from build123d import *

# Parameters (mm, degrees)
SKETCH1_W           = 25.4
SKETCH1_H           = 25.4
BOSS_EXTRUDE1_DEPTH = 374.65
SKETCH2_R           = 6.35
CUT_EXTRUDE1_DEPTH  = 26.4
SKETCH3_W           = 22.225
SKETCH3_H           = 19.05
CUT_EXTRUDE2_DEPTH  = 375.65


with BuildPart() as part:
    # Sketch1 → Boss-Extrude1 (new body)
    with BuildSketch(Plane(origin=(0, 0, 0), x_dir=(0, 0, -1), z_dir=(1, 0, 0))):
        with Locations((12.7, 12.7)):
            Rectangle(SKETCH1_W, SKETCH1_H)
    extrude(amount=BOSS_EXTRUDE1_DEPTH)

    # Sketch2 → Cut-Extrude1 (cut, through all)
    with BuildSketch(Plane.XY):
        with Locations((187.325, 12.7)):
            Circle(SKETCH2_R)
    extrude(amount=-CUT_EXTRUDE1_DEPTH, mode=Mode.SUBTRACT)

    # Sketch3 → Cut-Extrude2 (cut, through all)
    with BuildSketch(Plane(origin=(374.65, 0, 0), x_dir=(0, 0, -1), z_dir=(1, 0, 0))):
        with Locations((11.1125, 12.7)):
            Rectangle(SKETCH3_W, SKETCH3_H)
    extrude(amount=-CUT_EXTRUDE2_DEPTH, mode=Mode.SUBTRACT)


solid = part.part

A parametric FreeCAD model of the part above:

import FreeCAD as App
import Part
import Sketcher
from FreeCAD import Vector
Q = App.Units.Quantity

doc = App.newDocument("Part")
params = doc.addObject("Spreadsheet::Sheet", "Params")
for row, (alias, value) in enumerate([
    ("sketch1_width", "1 in"),
    ("pad1_length", "14.75 in"),
    ("sketch2_diameter", "0.5 in"),
    ("sketch3_width", "0.75 in"),
    ("sketch3_height", "0.875 in"),
], start=1):
    params.set(f"A{row}", alias)
    params.set(f"B{row}", "=" + value)
    params.setAlias(f"B{row}", alias)

body = doc.addObject("PartDesign::Body", "Body")

# Sketch on YZ plane
sketch1 = body.newObject("Sketcher::SketchObject", "Sketch")
sketch1.AttachmentSupport = (doc.getObject("YZ_Plane"), [""])
sketch1.MapMode = "FlatFace"
sketch1.addGeometry([
    Part.LineSegment(Vector(25, 0, 0), Vector(0, 0, 0)),
    Part.LineSegment(Vector(0, 0, 0), Vector(0, -25, 0)),
    Part.LineSegment(Vector(0, -25, 0), Vector(25, -25, 0)),
    Part.LineSegment(Vector(25, -25, 0), Vector(25, 0, 0)),
], False)
sketch1.addConstraint([
    Sketcher.Constraint("Coincident", 0, 2, 1, 1),
    Sketcher.Constraint("Coincident", 1, 2, 2, 1),
    Sketcher.Constraint("Coincident", 2, 2, 3, 1),
    Sketcher.Constraint("Coincident", 3, 2, 0, 1),
    Sketcher.Constraint("Horizontal", 0),
    Sketcher.Constraint("Vertical", 1),
    Sketcher.Constraint("Horizontal", 2),
    Sketcher.Constraint("Vertical", 3),
    Sketcher.Constraint("Coincident", 0, 2, -1, 1),
    Sketcher.Constraint("Equal", 2, 1),
    Sketcher.Constraint("DistanceX", 0, 2, 0, 1, Q("1 in")),
])
sketch1.setExpression("Constraints[10]", "Params.sketch1_width")
pad1 = body.newObject("PartDesign::Pad", "Pad")
pad1.Profile = sketch1
pad1.setExpression("Length", "Params.pad1_length")

# Sketch on XY plane
sketch2 = body.newObject("Sketcher::SketchObject", "Sketch001")
sketch2.AttachmentSupport = (doc.getObject("XY_Plane"), [""])
sketch2.MapMode = "FlatFace"
sketch2.addGeometry(Part.Circle(Vector(187, 13, 0), Vector(0, 0, 1), 6), False)
sketch2.addConstraint([
    Sketcher.Constraint("Diameter", 0, Q("0.5 in")),
    Sketcher.Constraint("DistanceY", -1, 1, 0, 3, Q("0.5 in")),
    Sketcher.Constraint("DistanceX", -1, 1, 0, 3, Q("7.375 in")),
])
sketch2.setExpression("Constraints[0]", "Params.sketch2_diameter")
pocket1 = body.newObject("PartDesign::Pocket", "Pocket")
pocket1.Profile = sketch2
pocket1.Type = "ThroughAll"

# Sketch on YZ plane
sketch3 = body.newObject("Sketcher::SketchObject", "Sketch002")
sketch3.AttachmentSupport = (doc.getObject("YZ_Plane"), [""])
sketch3.MapMode = "FlatFace"
sketch3.AttachmentOffset = App.Placement(Vector(0, 0, 14.75 * 25.4), App.Rotation())
sketch3.addGeometry([
    Part.LineSegment(Vector(22, 0, 0), Vector(3, 0, 0)),
    Part.LineSegment(Vector(3, 0, 0), Vector(3, -22, 0)),
    Part.LineSegment(Vector(3, -22, 0), Vector(22, -22, 0)),
    Part.LineSegment(Vector(22, -22, 0), Vector(22, 0, 0)),
], False)
sketch3.addConstraint([
    Sketcher.Constraint("Coincident", 0, 2, 1, 1),
    Sketcher.Constraint("Coincident", 1, 2, 2, 1),
    Sketcher.Constraint("Coincident", 2, 2, 3, 1),
    Sketcher.Constraint("Coincident", 3, 2, 0, 1),
    Sketcher.Constraint("Horizontal", 0),
    Sketcher.Constraint("Vertical", 1),
    Sketcher.Constraint("Horizontal", 2),
    Sketcher.Constraint("Vertical", 3),
    Sketcher.Constraint("PointOnObject", 0, 2, -1),
    Sketcher.Constraint("DistanceX", 0, 2, 0, 1, Q("0.75 in")),
    Sketcher.Constraint("DistanceY", 1, 2, 1, 1, Q("0.875 in")),
    Sketcher.Constraint("DistanceX", -1, 1, 0, 2, Q("0.125 in")),
])
sketch3.setExpression("Constraints[9]", "Params.sketch3_width")
sketch3.setExpression("Constraints[10]", "Params.sketch3_height")
pocket2 = body.newObject("PartDesign::Pocket", "Pocket001")
pocket2.Profile = sketch3
pocket2.Type = "ThroughAll"

doc.recompute()
